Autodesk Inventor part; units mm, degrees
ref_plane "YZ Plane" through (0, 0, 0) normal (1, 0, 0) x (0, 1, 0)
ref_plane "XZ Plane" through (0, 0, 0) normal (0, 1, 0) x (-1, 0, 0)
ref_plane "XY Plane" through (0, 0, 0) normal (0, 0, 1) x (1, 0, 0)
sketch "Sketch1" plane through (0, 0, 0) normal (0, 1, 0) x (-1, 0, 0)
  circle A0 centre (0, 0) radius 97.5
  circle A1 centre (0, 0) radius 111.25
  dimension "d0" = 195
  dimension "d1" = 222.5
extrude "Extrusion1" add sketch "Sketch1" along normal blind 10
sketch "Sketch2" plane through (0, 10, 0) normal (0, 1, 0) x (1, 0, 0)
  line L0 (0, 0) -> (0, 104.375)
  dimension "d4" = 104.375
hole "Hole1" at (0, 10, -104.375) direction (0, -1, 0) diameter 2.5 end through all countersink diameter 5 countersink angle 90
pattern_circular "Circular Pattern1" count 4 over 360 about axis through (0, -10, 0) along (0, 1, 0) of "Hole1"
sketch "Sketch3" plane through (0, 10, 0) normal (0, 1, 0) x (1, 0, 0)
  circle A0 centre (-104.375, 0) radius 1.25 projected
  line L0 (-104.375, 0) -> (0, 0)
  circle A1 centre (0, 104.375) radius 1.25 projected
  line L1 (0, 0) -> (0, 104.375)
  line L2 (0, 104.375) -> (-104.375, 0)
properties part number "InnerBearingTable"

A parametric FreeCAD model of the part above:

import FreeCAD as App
import Part
import Sketcher

V = App.Vector

doc = App.newDocument("Part")
params = doc.addObject("Spreadsheet::Sheet", "Params")
for row, (alias, value) in enumerate([
    ("sketch1_diameter", "195 mm"),
    ("sketch1_diameter2", "222.5 mm"),
    ("pad1_length", "10 mm"),
    ("sketch2_diameter", "2.5 mm"),
    ("hole_diameter", "2.5 mm"),
    ("hole_csink_diameter", "5 mm"),
], start=1):
    params.set(f"A{row}", alias)
    params.set(f"B{row}", "=" + value)
    params.setAlias(f"B{row}", alias)

body = doc.addObject("PartDesign::Body", "Body")

sketch1 = doc.addObject("Sketcher::SketchObject", "Sketch")
body.addObject(sketch1)
sketch1.AttachmentSupport = (doc.XZ_Plane, [""])
sketch1.MapMode = "FlatFace"
sketch1.addGeometry([
    Part.Circle(V(0, 0, 0), V(0, 0, 1), 111.25),
    Part.Circle(V(0, 0, 0), V(0, 0, 1), 97.5),
], False)
sketch1.addConstraint([
    Sketcher.Constraint("Coincident", 0, 3, -1, 1),
    Sketcher.Constraint("Coincident", 1, 3, -1, 1),
    Sketcher.Constraint("Diameter", 1, 195.0),
    Sketcher.Constraint("Diameter", 0, 222.5),
])
sketch1.setExpression("Constraints[2]", "Params.sketch1_diameter")
sketch1.setExpression("Constraints[3]", "Params.sketch1_diameter2")
pad1 = doc.addObject("PartDesign::Pad", "Pad")
body.addObject(pad1)
pad1.Profile = sketch1
pad1.setExpression("Length", "Params.pad1_length")
pad1.Reversed = True

sketch2 = doc.addObject("Sketcher::SketchObject", "Sketch001")
body.addObject(sketch2)
sketch2.AttachmentSupport = (doc.XZ_Plane, [""])
sketch2.MapMode = "FlatFace"
sketch2.AttachmentOffset = App.Placement(V(0, 0, -10), App.Rotation())
sketch2.addGeometry(Part.Circle(V(0, -104.375, 0), V(0, 0, 1), 1.25), False)
sketch2.addConstraint([
    Sketcher.Constraint("PointOnObject", 0, 3, -2),
    Sketcher.Constraint("Diameter", 0, 2.5),
    Sketcher.Constraint("DistanceY", 0, 3, -1, 1, 104.375),
])
sketch2.setExpression("Constraints[1]", "Params.sketch2_diameter")
doc.recompute()
hole = doc.addObject("PartDesign::Hole", "Hole")
body.addObject(hole)
hole.Profile = sketch2
hole.ThreadType = "None"
hole.setExpression("Diameter", "Params.hole_diameter")
hole.DepthType = "ThroughAll"
hole.HoleCutType = "Countersink"
hole.setExpression("HoleCutDiameter", "Params.hole_csink_diameter")
hole.HoleCutCountersinkAngle = 90
hole.Reversed = True
doc.recompute()

polarpattern = doc.addObject("PartDesign::PolarPattern", "PolarPattern")
body.addObject(polarpattern)
polarpattern.Originals = [hole]
polarpattern.Axis = (doc.Y_Axis, [""])
polarpattern.Angle = 360
polarpattern.Occurrences = 4
body.Tip = polarpattern

doc.recompute()
